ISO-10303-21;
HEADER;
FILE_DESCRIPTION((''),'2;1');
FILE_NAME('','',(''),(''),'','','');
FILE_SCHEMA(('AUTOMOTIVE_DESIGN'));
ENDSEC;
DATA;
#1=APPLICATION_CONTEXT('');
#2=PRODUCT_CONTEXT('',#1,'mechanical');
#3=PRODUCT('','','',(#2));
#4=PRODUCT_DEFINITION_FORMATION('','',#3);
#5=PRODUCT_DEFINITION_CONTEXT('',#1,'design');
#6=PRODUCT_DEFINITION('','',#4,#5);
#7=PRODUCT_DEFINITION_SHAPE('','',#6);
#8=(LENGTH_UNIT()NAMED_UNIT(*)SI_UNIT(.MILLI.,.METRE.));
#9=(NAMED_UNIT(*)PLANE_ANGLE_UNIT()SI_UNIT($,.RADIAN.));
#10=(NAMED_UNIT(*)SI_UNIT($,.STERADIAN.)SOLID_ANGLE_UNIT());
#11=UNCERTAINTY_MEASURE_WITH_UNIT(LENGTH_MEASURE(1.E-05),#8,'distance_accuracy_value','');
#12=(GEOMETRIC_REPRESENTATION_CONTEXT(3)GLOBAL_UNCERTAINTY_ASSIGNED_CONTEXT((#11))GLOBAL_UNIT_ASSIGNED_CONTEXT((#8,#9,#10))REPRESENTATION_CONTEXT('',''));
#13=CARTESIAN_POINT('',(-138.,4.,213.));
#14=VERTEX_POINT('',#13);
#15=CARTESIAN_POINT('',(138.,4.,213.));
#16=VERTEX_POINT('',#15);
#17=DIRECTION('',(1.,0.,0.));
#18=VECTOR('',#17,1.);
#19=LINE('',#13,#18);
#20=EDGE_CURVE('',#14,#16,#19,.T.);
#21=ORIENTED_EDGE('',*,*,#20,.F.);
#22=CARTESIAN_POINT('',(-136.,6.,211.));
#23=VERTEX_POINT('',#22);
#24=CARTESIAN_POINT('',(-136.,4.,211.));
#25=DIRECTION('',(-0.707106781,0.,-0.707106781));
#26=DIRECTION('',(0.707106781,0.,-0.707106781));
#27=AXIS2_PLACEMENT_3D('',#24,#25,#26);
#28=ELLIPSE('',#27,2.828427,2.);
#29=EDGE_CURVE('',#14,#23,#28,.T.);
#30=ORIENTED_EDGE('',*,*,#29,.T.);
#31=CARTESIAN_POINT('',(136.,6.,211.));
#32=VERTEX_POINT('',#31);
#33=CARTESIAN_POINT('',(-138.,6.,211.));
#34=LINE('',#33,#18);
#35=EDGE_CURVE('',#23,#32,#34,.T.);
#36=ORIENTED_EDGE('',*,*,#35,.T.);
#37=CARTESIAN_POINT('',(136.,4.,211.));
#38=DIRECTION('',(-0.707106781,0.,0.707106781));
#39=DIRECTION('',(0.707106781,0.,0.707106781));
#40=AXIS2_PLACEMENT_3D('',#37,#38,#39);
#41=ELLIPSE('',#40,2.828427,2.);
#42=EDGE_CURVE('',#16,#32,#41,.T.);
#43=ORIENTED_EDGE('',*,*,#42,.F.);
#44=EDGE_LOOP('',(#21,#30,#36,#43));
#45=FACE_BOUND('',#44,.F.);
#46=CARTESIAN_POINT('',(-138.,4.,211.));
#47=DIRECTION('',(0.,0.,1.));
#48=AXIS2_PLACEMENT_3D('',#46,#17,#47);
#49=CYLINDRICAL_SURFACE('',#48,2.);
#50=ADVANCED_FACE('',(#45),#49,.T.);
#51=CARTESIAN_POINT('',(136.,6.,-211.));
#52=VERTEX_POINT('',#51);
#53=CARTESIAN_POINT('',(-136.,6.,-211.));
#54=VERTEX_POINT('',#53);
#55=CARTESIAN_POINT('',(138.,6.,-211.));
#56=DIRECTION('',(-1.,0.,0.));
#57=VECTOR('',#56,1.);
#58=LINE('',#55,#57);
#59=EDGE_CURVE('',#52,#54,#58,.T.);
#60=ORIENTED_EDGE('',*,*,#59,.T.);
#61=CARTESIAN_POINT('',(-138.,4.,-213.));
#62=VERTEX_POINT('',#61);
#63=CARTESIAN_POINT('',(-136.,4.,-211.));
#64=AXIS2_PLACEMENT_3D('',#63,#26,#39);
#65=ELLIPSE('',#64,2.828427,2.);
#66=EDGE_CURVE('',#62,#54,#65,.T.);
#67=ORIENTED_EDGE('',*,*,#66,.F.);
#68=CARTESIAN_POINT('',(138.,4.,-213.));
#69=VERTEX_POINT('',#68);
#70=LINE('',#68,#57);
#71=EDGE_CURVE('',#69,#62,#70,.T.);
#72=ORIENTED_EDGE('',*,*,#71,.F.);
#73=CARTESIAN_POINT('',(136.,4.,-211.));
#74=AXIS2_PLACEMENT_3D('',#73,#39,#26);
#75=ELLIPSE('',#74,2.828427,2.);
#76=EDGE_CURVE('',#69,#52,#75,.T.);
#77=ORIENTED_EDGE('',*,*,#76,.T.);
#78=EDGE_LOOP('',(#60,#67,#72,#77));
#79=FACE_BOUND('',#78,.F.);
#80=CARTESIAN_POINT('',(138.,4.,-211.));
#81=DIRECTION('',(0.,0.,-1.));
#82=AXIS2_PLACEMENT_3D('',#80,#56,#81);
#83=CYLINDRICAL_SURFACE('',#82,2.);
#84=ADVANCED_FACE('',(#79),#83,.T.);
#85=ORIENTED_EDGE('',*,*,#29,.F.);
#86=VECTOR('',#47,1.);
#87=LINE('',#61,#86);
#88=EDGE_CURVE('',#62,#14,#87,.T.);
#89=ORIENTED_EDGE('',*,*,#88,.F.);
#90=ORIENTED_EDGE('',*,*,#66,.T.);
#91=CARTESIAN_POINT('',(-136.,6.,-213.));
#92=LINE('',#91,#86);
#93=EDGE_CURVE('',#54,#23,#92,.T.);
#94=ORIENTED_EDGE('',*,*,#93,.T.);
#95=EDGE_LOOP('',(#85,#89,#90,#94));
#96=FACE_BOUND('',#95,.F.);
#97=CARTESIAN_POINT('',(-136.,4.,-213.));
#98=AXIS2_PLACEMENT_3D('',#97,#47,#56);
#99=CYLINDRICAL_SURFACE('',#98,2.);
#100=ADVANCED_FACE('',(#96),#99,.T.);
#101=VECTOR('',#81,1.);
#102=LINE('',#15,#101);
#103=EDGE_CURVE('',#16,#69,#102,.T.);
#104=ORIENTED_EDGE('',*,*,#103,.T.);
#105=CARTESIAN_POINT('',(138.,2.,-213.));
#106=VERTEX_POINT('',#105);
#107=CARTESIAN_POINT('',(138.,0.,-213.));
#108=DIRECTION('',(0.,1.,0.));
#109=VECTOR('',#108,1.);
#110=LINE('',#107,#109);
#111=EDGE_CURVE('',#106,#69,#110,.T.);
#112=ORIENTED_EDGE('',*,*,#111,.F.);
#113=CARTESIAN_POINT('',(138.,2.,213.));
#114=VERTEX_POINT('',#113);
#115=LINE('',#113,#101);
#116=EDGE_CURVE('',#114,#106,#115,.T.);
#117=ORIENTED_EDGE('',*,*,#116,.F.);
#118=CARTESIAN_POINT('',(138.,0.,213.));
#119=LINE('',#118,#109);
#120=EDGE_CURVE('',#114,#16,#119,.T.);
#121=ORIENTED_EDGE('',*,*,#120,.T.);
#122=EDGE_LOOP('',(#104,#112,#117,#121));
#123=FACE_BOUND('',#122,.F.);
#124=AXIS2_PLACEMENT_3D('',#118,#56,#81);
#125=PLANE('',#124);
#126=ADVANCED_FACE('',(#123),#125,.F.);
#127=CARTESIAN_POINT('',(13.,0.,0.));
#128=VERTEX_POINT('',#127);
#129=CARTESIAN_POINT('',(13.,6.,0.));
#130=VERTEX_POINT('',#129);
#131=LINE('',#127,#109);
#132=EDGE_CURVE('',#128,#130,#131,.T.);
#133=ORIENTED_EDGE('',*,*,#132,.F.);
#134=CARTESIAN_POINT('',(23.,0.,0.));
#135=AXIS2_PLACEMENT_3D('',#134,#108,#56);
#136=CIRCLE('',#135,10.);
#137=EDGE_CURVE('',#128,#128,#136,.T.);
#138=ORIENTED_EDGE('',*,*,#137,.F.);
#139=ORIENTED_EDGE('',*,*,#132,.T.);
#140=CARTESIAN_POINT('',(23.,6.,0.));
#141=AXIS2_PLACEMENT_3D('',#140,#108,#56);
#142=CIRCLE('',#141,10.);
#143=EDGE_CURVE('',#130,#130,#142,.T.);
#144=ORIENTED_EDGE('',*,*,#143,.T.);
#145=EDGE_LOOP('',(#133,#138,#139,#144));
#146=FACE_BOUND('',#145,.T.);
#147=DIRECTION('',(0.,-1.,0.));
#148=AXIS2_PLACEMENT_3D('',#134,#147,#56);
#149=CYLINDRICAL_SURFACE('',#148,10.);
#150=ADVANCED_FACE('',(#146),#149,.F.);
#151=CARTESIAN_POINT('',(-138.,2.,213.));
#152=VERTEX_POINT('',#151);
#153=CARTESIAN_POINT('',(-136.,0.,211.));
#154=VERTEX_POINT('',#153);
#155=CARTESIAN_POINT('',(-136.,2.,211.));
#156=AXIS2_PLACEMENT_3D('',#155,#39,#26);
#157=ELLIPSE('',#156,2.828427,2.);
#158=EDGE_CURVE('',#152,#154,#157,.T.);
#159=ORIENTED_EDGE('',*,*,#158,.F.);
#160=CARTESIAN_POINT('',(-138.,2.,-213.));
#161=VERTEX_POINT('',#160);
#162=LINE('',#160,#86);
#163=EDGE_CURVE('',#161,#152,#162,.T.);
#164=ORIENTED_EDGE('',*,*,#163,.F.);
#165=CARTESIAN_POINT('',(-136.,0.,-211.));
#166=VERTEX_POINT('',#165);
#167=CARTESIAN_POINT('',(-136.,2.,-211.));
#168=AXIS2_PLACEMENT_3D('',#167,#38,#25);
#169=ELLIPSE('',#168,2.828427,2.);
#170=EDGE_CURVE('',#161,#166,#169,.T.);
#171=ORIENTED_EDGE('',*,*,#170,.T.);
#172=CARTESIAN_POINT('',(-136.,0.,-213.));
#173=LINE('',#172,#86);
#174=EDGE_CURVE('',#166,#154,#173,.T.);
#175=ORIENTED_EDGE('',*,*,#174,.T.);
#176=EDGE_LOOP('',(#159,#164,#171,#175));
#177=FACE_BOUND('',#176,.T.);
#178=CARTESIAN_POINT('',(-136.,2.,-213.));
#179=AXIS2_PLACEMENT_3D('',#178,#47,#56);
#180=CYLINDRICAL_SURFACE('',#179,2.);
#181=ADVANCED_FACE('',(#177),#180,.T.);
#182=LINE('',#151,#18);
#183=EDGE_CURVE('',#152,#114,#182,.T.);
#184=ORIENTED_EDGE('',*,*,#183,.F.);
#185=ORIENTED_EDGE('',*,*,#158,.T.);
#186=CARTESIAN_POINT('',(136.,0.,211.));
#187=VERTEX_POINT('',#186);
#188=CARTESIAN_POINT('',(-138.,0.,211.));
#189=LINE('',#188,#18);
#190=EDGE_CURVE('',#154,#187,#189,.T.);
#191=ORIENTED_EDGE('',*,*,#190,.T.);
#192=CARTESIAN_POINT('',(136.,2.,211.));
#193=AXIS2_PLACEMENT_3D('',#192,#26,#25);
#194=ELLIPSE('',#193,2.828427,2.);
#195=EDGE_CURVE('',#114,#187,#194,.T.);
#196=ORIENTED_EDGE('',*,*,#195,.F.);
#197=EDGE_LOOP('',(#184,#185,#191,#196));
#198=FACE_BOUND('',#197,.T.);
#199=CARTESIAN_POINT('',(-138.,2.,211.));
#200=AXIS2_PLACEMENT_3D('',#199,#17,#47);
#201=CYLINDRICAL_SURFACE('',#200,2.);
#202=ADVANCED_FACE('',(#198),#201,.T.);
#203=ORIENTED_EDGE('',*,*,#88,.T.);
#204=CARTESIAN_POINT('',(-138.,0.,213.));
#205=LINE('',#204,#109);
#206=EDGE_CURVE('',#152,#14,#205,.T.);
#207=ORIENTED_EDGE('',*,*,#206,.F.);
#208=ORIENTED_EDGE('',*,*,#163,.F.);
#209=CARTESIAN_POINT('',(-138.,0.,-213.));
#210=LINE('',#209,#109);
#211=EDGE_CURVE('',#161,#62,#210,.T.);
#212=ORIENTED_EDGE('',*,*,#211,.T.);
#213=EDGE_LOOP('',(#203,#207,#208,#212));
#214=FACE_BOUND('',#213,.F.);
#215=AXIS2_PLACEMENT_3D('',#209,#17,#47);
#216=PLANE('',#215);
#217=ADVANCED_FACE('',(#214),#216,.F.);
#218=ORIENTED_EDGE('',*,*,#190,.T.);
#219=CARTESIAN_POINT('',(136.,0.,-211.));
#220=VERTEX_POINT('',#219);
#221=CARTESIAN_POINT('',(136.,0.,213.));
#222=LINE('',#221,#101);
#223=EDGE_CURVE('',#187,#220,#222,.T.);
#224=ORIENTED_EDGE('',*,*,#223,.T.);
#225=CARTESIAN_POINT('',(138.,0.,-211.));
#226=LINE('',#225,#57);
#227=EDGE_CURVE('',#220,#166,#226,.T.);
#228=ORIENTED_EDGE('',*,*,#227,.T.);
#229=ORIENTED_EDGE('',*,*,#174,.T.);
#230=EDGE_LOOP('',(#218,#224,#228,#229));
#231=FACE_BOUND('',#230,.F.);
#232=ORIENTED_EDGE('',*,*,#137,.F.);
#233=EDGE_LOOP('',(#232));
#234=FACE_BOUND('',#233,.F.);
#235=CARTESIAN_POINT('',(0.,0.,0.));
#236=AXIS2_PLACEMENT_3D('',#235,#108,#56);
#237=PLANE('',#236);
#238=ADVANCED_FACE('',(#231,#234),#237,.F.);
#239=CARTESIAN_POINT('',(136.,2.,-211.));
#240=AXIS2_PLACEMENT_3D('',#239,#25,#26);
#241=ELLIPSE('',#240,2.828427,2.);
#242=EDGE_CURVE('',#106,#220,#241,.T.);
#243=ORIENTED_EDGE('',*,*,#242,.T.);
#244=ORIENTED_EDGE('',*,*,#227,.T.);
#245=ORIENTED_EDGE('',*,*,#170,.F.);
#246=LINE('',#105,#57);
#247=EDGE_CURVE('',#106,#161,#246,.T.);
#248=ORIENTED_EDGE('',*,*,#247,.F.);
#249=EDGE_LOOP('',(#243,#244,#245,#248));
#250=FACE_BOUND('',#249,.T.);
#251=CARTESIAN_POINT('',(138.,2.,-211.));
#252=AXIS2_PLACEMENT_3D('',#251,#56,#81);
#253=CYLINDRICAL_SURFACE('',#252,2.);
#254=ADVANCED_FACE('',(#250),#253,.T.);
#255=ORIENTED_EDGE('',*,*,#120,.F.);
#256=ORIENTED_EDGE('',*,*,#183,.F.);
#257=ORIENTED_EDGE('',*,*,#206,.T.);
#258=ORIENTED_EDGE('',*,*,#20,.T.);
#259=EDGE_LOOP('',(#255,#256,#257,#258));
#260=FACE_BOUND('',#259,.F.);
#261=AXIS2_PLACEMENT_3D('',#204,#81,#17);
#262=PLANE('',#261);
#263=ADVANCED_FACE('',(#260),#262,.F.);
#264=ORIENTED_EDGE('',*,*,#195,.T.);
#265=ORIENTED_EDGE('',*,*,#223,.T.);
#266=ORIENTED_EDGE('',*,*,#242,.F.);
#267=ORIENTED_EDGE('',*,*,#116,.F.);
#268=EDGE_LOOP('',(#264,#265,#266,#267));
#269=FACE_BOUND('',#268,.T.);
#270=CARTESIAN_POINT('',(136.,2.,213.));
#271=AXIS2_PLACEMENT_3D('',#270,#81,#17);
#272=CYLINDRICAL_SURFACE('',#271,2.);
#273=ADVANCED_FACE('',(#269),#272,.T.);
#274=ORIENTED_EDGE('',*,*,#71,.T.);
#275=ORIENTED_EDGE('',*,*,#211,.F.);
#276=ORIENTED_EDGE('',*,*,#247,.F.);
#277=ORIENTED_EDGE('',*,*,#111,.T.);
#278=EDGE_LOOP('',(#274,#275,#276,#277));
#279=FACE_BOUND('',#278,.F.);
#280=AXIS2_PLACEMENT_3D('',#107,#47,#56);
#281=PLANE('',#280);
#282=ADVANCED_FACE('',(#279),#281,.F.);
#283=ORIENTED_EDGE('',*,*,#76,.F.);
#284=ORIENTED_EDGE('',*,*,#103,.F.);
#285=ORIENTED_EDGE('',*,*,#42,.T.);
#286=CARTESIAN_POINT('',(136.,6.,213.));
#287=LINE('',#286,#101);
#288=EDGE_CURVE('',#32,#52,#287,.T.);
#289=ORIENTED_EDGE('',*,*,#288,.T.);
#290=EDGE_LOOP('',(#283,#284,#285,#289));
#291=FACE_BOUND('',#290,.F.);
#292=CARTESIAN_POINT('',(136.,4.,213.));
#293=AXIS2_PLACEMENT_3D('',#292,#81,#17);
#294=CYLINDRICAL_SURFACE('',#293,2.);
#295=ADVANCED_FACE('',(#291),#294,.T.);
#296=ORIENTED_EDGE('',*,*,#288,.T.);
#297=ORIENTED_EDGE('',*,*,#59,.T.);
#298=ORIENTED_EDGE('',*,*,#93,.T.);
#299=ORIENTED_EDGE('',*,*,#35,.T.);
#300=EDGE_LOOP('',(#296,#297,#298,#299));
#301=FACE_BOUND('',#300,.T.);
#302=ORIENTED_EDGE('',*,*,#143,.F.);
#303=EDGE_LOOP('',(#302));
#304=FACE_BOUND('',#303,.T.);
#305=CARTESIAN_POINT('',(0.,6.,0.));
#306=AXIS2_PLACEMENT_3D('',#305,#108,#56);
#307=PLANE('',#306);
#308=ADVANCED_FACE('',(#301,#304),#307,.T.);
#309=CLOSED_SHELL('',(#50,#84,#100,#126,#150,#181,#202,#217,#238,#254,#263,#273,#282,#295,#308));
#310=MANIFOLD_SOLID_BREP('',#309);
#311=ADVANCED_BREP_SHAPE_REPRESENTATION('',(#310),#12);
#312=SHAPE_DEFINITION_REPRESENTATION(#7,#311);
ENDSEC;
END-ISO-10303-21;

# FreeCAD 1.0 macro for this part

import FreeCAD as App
import Part
import Sketcher
from FreeCAD import Vector


def edges_at(feature, points):
    """Names of the edges that pass closest to the given points."""
    edges = feature.Shape.Edges
    near = lambda p: min(range(len(edges)), key=lambda i: edges[i].distToShape(Part.Vertex(*p))[0])
    return sorted({f"Edge{near(p) + 1}" for p in points})


def add_polygon(sketch, points):
    """Adds a closed chain of lines whose ends are joined by coincident constraints."""
    first, n = sketch.GeometryCount, len(points)
    for a, b in zip(points, points[1:] + points[:1]):
        sketch.addGeometry(Part.LineSegment(App.Vector(*a, 0), App.Vector(*b, 0)), False)
    for i in range(n):
        sketch.addConstraint(Sketcher.Constraint("Coincident", first + i, 2, first + (i + 1) % n, 1))

doc = App.newDocument("Part")
body = doc.addObject("PartDesign::Body", "Body")

sketch1 = doc.addObject("Sketcher::SketchObject", "Sketch")
body.addObject(sketch1)
sketch1.AttachmentSupport = (doc.XZ_Plane, [""])
sketch1.MapMode = "FlatFace"
add_polygon(sketch1, [(-138, -213), (-138, 213), (138, 213), (138, -213)])
sketch1.addGeometry(Part.Circle(Vector(23, 0, 0), Vector(0, 0, 1), 10), False)
sketch1.addConstraint([
    Sketcher.Constraint("Vertical", 0),
    Sketcher.Constraint("Horizontal", 1),
    Sketcher.Constraint("Vertical", 2),
    Sketcher.Constraint("Horizontal", 3),
    Sketcher.Constraint("Symmetric", 0, 2, 2, 2, -1, 1),
    Sketcher.Constraint("PointOnObject", 4, 3, -1),
    Sketcher.Constraint("Diameter", 4, 20.0),
    Sketcher.Constraint("DistanceX", 1, 1, 1, 2, 276.0),
    Sketcher.Constraint("DistanceY", 0, 1, 0, 2, 426.0),
    Sketcher.Constraint("DistanceX", -1, 1, 4, 3, 23.0),
])
pad1 = doc.addObject("PartDesign::Pad", "Pad")
body.addObject(pad1)
pad1.Profile = sketch1
pad1.Length = 6
pad1.Reversed = True
doc.recompute()

fillet = doc.addObject("PartDesign::Fillet", "Fillet")
body.addObject(fillet)
fillet.Base = (pad1, edges_at(pad1, [
    (0, 6, 213),
    (138, 6, 0),
    (-138, 6, 0),
    (0, 6, -213),
    (138, 0, 0),
    (0, 0, 213),
    (0, 0, -213),
    (-138, 0, 0),
]))
fillet.Radius = 2

doc.recompute()
